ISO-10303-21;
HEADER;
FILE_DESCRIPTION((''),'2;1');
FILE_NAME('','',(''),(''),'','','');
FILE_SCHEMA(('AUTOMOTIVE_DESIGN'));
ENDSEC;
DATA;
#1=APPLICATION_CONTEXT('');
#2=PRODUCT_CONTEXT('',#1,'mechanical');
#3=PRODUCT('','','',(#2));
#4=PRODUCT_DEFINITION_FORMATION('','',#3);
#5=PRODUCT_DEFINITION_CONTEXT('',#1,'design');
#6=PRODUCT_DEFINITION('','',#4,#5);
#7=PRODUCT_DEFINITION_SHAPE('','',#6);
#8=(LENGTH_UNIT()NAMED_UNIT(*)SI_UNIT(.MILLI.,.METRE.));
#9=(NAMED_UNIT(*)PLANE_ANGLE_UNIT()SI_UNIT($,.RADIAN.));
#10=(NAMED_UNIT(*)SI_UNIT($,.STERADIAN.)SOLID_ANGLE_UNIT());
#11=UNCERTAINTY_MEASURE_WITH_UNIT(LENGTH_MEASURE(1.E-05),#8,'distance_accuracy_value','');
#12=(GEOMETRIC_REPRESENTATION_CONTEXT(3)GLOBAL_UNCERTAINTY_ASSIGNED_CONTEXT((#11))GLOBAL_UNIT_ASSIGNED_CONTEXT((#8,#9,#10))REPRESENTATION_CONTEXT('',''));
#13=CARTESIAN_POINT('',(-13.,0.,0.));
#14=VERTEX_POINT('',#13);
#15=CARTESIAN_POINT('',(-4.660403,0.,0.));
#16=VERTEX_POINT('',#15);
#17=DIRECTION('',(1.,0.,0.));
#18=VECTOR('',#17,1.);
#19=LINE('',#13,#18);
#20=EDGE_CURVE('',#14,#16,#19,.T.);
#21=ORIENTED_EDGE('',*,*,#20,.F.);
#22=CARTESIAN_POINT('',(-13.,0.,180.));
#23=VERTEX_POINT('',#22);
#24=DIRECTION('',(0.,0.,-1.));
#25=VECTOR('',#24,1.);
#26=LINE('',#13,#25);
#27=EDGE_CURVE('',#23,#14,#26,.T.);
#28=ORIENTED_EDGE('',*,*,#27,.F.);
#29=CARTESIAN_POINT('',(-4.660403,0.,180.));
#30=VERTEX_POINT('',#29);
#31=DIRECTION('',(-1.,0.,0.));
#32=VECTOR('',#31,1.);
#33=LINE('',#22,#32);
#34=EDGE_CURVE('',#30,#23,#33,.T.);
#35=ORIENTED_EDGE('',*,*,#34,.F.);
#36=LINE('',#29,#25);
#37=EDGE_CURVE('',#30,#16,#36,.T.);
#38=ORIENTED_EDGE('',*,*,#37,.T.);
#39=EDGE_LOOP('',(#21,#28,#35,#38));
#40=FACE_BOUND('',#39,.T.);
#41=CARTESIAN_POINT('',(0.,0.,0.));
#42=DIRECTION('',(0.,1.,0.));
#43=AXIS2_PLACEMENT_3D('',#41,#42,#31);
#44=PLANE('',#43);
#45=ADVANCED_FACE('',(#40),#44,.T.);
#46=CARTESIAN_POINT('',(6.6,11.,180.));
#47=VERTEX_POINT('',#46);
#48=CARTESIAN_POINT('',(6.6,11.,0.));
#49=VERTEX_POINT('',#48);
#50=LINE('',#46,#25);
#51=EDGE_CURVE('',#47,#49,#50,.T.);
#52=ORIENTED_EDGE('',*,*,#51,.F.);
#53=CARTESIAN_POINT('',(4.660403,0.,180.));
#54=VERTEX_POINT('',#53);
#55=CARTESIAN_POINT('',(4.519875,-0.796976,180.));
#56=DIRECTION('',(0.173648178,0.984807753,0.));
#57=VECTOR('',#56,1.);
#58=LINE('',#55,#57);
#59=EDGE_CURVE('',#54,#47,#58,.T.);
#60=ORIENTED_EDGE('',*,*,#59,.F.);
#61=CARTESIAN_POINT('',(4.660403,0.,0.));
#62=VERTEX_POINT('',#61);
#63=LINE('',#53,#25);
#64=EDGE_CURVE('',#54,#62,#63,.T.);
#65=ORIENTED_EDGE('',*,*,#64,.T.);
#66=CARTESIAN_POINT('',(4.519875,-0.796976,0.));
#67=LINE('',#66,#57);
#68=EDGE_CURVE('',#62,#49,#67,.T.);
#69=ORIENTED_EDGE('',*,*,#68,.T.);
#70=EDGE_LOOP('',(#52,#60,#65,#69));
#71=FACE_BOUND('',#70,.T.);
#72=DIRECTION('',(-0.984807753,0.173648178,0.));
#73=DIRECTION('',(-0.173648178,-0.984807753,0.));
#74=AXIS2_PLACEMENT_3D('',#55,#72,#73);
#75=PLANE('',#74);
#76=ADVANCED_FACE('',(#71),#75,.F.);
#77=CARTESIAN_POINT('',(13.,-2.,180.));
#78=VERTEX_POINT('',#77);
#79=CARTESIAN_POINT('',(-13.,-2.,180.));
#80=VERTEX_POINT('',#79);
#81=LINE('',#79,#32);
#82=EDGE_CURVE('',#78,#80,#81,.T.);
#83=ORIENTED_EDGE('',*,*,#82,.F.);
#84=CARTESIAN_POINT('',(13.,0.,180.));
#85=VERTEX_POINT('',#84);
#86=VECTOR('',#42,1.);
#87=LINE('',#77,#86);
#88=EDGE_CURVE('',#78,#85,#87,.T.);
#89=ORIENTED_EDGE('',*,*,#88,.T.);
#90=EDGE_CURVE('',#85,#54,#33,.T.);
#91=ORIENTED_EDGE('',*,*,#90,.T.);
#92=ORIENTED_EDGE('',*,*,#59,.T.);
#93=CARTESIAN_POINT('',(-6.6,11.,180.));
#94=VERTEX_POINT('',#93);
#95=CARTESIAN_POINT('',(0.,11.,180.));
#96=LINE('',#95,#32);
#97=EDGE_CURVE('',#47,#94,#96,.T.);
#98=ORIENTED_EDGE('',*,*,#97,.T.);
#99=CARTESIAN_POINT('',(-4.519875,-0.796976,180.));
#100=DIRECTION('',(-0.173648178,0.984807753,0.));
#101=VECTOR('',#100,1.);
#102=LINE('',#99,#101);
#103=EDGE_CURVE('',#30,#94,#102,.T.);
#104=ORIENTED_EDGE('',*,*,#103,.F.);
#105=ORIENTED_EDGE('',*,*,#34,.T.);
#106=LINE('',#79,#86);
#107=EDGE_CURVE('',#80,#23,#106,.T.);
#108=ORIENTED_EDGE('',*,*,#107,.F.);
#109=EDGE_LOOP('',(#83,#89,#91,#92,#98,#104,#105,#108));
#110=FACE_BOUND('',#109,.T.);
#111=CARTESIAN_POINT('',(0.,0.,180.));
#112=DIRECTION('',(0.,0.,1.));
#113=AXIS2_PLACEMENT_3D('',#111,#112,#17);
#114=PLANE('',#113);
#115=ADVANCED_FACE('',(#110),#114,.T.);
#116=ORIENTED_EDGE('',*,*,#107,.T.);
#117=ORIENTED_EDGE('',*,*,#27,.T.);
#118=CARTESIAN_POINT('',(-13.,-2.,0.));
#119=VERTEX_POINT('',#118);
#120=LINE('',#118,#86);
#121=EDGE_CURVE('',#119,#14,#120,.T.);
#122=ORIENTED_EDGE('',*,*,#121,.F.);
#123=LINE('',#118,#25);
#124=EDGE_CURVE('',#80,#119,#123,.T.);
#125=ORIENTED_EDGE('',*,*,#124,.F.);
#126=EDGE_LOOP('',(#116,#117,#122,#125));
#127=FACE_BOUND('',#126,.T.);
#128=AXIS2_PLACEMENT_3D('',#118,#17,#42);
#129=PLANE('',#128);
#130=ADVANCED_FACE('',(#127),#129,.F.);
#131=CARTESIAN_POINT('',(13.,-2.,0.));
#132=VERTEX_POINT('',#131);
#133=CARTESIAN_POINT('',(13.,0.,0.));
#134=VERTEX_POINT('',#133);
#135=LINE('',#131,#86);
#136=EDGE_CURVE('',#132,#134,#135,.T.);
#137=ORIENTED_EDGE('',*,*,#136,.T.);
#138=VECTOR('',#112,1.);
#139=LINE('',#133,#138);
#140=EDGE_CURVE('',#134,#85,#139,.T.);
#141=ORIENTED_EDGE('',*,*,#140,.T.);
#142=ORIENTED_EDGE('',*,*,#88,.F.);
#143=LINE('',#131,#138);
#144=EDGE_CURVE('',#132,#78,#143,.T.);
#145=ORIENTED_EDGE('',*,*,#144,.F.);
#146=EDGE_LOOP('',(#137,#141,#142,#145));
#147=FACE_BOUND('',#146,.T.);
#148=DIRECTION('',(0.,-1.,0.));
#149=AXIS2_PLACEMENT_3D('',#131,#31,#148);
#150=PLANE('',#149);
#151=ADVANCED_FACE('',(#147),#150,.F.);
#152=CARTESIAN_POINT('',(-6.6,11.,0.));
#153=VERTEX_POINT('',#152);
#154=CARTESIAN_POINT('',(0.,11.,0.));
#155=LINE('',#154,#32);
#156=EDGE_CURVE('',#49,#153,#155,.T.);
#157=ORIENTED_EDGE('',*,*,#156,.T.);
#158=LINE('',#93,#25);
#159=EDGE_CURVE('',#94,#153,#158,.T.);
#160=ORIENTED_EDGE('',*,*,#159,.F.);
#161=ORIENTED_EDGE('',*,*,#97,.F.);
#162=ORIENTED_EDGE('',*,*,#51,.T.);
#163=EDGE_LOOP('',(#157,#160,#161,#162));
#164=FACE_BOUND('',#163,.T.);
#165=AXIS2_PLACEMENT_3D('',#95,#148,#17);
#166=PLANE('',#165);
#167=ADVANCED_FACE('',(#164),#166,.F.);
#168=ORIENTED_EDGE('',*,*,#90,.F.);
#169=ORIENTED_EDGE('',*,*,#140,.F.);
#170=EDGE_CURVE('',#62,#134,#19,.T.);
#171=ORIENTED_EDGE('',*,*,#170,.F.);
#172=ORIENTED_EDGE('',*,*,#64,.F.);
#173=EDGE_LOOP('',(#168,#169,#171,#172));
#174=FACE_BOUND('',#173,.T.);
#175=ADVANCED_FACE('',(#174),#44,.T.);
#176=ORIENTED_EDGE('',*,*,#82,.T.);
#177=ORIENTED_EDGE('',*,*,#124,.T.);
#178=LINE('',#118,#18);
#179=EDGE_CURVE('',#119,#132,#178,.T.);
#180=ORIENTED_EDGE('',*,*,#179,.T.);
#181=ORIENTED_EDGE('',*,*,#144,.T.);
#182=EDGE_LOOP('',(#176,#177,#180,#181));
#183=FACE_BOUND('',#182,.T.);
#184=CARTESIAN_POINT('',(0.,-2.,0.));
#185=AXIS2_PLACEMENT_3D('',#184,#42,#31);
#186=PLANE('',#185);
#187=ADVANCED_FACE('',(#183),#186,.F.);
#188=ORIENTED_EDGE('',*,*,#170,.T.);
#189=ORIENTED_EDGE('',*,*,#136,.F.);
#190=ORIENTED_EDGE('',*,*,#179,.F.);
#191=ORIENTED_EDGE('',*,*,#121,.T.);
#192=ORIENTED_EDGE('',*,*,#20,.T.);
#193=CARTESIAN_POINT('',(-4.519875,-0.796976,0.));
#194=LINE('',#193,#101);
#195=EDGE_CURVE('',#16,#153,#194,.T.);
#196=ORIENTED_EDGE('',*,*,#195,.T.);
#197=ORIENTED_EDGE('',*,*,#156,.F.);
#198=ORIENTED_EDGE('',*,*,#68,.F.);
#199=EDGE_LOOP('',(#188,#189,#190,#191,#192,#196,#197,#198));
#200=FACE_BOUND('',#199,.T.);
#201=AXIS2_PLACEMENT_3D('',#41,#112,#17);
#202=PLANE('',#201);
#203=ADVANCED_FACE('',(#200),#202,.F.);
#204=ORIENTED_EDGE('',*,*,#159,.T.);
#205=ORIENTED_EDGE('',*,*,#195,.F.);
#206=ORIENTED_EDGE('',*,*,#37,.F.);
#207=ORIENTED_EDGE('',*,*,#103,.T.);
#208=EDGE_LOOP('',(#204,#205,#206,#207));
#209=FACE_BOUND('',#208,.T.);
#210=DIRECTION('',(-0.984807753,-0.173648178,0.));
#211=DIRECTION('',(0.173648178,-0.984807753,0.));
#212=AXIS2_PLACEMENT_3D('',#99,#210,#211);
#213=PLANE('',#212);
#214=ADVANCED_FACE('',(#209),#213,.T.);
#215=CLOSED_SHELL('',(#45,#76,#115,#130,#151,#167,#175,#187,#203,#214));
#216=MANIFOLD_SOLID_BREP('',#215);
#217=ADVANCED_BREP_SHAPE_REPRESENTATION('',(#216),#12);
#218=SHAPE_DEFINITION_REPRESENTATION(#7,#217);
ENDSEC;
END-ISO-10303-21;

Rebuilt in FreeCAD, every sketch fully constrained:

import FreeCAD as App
import Part
import Sketcher
Q = App.Units.Quantity

doc = App.newDocument("Part")
body = doc.addObject("PartDesign::Body", "Body")

sketch1 = body.newObject("Sketcher::SketchObject", "Sketch")
sketch1.AttachmentSupport = (doc.getObject("XY_Plane"), [""])
sketch1.MapMode = "FlatFace"
sketch1.addGeometry(Part.LineSegment(App.Vector(-7, 11, 0), App.Vector(-5, 0, 0)), False)
sketch1.addGeometry(Part.LineSegment(App.Vector(-5, 0, 0), App.Vector(5, 0, 0)), False)
sketch1.addGeometry(Part.LineSegment(App.Vector(5, 0, 0), App.Vector(7, 11, 0)), False)
sketch1.addGeometry(Part.LineSegment(App.Vector(7, 11, 0), App.Vector(-7, 11, 0)), False)
sketch1.addConstraint(Sketcher.Constraint("Coincident", 0, 2, 1, 1))
sketch1.addConstraint(Sketcher.Constraint("Coincident", 1, 2, 2, 1))
sketch1.addConstraint(Sketcher.Constraint("Coincident", 2, 2, 3, 1))
sketch1.addConstraint(Sketcher.Constraint("Coincident", 3, 2, 0, 1))
sketch1.addConstraint(Sketcher.Constraint("Horizontal", 1))
sketch1.addConstraint(Sketcher.Constraint("Horizontal", 3))
sketch1.addConstraint(Sketcher.Constraint("Symmetric", 0, 2, 1, 2, -1, 1))
sketch1.addConstraint(Sketcher.Constraint("Equal", 0, 2))
sketch1.addConstraint(Sketcher.Constraint("Angle", 0, Q("-80 deg")))
sketch1.addConstraint(Sketcher.Constraint("DistanceX", 3, 2, 3, 1, Q("13.2 mm")))
sketch1.addConstraint(Sketcher.Constraint("DistanceY", -1, 1, 2, 2, Q("11 mm")))
pad1 = body.newObject("PartDesign::Pad", "Pad")
pad1.Profile = sketch1
pad1.Length = 180

sketch2 = body.newObject("Sketcher::SketchObject", "Sketch001")
sketch2.AttachmentSupport = (doc.getObject("XZ_Plane"), [""])
sketch2.MapMode = "FlatFace"
sketch2.addGeometry(Part.LineSegment(App.Vector(-13, 180, 0), App.Vector(-13, 0, 0)), False)
sketch2.addGeometry(Part.LineSegment(App.Vector(-13, 0, 0), App.Vector(13, 0, 0)), False)
sketch2.addGeometry(Part.LineSegment(App.Vector(13, 0, 0), App.Vector(13, 180, 0)), False)
sketch2.addGeometry(Part.LineSegment(App.Vector(13, 180, 0), App.Vector(-13, 180, 0)), False)
sketch2.addConstraint(Sketcher.Constraint("Coincident", 0, 2, 1, 1))
sketch2.addConstraint(Sketcher.Constraint("Coincident", 1, 2, 2, 1))
sketch2.addConstraint(Sketcher.Constraint("Coincident", 2, 2, 3, 1))
sketch2.addConstraint(Sketcher.Constraint("Coincident", 3, 2, 0, 1))
sketch2.addConstraint(Sketcher.Constraint("Vertical", 0))
sketch2.addConstraint(Sketcher.Constraint("Horizontal", 1))
sketch2.addConstraint(Sketcher.Constraint("Vertical", 2))
sketch2.addConstraint(Sketcher.Constraint("Horizontal", 3))
sketch2.addConstraint(Sketcher.Constraint("Symmetric", 0, 2, 1, 2, -1, 1))
sketch2.addConstraint(Sketcher.Constraint("DistanceX", 1, 1, 1, 2, Q("26 mm")))
sketch2.addConstraint(Sketcher.Constraint("DistanceY", 0, 2, 0, 1, Q("180 mm")))
pad2 = body.newObject("PartDesign::Pad", "Pad001")
pad2.Profile = sketch2
pad2.Length = 2

doc.recompute()
